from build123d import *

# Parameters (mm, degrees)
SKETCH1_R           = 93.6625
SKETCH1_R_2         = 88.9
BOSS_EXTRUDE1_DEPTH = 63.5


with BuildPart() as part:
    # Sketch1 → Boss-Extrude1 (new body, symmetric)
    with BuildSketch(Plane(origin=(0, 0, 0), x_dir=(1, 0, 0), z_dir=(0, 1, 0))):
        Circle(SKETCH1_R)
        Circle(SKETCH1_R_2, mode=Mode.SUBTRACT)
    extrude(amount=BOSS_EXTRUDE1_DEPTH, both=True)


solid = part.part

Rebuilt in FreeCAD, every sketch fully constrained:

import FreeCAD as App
import Part
import Sketcher
from FreeCAD import Vector
Q = App.Units.Quantity

doc = App.newDocument("Part")
body = doc.addObject("PartDesign::Body", "Body")

sketch1 = body.newObject("Sketcher::SketchObject", "Sketch")
sketch1.AttachmentSupport = (doc.getObject("XZ_Plane"), [""])
sketch1.MapMode = "FlatFace"
sketch1.addGeometry([
    Part.Circle(Vector(0, 0, 0), Vector(0, 0, 1), 93.6625),
    Part.Circle(Vector(0, 0, 0), Vector(0, 0, 1), 88.9),
], False)
sketch1.addConstraint([
    Sketcher.Constraint("Coincident", 0, 3, -1, 1),
    Sketcher.Constraint("Coincident", 1, 3, -1, 1),
    Sketcher.Constraint("Diameter", 1, Q("7 in")),
    Sketcher.Constraint("Diameter", 0, Q("7.375 in")),
])
pad1 = body.newObject("PartDesign::Pad", "Pad")
pad1.Profile = sketch1
pad1.Length = Q("5 in")
pad1.Midplane = True

doc.recompute()
